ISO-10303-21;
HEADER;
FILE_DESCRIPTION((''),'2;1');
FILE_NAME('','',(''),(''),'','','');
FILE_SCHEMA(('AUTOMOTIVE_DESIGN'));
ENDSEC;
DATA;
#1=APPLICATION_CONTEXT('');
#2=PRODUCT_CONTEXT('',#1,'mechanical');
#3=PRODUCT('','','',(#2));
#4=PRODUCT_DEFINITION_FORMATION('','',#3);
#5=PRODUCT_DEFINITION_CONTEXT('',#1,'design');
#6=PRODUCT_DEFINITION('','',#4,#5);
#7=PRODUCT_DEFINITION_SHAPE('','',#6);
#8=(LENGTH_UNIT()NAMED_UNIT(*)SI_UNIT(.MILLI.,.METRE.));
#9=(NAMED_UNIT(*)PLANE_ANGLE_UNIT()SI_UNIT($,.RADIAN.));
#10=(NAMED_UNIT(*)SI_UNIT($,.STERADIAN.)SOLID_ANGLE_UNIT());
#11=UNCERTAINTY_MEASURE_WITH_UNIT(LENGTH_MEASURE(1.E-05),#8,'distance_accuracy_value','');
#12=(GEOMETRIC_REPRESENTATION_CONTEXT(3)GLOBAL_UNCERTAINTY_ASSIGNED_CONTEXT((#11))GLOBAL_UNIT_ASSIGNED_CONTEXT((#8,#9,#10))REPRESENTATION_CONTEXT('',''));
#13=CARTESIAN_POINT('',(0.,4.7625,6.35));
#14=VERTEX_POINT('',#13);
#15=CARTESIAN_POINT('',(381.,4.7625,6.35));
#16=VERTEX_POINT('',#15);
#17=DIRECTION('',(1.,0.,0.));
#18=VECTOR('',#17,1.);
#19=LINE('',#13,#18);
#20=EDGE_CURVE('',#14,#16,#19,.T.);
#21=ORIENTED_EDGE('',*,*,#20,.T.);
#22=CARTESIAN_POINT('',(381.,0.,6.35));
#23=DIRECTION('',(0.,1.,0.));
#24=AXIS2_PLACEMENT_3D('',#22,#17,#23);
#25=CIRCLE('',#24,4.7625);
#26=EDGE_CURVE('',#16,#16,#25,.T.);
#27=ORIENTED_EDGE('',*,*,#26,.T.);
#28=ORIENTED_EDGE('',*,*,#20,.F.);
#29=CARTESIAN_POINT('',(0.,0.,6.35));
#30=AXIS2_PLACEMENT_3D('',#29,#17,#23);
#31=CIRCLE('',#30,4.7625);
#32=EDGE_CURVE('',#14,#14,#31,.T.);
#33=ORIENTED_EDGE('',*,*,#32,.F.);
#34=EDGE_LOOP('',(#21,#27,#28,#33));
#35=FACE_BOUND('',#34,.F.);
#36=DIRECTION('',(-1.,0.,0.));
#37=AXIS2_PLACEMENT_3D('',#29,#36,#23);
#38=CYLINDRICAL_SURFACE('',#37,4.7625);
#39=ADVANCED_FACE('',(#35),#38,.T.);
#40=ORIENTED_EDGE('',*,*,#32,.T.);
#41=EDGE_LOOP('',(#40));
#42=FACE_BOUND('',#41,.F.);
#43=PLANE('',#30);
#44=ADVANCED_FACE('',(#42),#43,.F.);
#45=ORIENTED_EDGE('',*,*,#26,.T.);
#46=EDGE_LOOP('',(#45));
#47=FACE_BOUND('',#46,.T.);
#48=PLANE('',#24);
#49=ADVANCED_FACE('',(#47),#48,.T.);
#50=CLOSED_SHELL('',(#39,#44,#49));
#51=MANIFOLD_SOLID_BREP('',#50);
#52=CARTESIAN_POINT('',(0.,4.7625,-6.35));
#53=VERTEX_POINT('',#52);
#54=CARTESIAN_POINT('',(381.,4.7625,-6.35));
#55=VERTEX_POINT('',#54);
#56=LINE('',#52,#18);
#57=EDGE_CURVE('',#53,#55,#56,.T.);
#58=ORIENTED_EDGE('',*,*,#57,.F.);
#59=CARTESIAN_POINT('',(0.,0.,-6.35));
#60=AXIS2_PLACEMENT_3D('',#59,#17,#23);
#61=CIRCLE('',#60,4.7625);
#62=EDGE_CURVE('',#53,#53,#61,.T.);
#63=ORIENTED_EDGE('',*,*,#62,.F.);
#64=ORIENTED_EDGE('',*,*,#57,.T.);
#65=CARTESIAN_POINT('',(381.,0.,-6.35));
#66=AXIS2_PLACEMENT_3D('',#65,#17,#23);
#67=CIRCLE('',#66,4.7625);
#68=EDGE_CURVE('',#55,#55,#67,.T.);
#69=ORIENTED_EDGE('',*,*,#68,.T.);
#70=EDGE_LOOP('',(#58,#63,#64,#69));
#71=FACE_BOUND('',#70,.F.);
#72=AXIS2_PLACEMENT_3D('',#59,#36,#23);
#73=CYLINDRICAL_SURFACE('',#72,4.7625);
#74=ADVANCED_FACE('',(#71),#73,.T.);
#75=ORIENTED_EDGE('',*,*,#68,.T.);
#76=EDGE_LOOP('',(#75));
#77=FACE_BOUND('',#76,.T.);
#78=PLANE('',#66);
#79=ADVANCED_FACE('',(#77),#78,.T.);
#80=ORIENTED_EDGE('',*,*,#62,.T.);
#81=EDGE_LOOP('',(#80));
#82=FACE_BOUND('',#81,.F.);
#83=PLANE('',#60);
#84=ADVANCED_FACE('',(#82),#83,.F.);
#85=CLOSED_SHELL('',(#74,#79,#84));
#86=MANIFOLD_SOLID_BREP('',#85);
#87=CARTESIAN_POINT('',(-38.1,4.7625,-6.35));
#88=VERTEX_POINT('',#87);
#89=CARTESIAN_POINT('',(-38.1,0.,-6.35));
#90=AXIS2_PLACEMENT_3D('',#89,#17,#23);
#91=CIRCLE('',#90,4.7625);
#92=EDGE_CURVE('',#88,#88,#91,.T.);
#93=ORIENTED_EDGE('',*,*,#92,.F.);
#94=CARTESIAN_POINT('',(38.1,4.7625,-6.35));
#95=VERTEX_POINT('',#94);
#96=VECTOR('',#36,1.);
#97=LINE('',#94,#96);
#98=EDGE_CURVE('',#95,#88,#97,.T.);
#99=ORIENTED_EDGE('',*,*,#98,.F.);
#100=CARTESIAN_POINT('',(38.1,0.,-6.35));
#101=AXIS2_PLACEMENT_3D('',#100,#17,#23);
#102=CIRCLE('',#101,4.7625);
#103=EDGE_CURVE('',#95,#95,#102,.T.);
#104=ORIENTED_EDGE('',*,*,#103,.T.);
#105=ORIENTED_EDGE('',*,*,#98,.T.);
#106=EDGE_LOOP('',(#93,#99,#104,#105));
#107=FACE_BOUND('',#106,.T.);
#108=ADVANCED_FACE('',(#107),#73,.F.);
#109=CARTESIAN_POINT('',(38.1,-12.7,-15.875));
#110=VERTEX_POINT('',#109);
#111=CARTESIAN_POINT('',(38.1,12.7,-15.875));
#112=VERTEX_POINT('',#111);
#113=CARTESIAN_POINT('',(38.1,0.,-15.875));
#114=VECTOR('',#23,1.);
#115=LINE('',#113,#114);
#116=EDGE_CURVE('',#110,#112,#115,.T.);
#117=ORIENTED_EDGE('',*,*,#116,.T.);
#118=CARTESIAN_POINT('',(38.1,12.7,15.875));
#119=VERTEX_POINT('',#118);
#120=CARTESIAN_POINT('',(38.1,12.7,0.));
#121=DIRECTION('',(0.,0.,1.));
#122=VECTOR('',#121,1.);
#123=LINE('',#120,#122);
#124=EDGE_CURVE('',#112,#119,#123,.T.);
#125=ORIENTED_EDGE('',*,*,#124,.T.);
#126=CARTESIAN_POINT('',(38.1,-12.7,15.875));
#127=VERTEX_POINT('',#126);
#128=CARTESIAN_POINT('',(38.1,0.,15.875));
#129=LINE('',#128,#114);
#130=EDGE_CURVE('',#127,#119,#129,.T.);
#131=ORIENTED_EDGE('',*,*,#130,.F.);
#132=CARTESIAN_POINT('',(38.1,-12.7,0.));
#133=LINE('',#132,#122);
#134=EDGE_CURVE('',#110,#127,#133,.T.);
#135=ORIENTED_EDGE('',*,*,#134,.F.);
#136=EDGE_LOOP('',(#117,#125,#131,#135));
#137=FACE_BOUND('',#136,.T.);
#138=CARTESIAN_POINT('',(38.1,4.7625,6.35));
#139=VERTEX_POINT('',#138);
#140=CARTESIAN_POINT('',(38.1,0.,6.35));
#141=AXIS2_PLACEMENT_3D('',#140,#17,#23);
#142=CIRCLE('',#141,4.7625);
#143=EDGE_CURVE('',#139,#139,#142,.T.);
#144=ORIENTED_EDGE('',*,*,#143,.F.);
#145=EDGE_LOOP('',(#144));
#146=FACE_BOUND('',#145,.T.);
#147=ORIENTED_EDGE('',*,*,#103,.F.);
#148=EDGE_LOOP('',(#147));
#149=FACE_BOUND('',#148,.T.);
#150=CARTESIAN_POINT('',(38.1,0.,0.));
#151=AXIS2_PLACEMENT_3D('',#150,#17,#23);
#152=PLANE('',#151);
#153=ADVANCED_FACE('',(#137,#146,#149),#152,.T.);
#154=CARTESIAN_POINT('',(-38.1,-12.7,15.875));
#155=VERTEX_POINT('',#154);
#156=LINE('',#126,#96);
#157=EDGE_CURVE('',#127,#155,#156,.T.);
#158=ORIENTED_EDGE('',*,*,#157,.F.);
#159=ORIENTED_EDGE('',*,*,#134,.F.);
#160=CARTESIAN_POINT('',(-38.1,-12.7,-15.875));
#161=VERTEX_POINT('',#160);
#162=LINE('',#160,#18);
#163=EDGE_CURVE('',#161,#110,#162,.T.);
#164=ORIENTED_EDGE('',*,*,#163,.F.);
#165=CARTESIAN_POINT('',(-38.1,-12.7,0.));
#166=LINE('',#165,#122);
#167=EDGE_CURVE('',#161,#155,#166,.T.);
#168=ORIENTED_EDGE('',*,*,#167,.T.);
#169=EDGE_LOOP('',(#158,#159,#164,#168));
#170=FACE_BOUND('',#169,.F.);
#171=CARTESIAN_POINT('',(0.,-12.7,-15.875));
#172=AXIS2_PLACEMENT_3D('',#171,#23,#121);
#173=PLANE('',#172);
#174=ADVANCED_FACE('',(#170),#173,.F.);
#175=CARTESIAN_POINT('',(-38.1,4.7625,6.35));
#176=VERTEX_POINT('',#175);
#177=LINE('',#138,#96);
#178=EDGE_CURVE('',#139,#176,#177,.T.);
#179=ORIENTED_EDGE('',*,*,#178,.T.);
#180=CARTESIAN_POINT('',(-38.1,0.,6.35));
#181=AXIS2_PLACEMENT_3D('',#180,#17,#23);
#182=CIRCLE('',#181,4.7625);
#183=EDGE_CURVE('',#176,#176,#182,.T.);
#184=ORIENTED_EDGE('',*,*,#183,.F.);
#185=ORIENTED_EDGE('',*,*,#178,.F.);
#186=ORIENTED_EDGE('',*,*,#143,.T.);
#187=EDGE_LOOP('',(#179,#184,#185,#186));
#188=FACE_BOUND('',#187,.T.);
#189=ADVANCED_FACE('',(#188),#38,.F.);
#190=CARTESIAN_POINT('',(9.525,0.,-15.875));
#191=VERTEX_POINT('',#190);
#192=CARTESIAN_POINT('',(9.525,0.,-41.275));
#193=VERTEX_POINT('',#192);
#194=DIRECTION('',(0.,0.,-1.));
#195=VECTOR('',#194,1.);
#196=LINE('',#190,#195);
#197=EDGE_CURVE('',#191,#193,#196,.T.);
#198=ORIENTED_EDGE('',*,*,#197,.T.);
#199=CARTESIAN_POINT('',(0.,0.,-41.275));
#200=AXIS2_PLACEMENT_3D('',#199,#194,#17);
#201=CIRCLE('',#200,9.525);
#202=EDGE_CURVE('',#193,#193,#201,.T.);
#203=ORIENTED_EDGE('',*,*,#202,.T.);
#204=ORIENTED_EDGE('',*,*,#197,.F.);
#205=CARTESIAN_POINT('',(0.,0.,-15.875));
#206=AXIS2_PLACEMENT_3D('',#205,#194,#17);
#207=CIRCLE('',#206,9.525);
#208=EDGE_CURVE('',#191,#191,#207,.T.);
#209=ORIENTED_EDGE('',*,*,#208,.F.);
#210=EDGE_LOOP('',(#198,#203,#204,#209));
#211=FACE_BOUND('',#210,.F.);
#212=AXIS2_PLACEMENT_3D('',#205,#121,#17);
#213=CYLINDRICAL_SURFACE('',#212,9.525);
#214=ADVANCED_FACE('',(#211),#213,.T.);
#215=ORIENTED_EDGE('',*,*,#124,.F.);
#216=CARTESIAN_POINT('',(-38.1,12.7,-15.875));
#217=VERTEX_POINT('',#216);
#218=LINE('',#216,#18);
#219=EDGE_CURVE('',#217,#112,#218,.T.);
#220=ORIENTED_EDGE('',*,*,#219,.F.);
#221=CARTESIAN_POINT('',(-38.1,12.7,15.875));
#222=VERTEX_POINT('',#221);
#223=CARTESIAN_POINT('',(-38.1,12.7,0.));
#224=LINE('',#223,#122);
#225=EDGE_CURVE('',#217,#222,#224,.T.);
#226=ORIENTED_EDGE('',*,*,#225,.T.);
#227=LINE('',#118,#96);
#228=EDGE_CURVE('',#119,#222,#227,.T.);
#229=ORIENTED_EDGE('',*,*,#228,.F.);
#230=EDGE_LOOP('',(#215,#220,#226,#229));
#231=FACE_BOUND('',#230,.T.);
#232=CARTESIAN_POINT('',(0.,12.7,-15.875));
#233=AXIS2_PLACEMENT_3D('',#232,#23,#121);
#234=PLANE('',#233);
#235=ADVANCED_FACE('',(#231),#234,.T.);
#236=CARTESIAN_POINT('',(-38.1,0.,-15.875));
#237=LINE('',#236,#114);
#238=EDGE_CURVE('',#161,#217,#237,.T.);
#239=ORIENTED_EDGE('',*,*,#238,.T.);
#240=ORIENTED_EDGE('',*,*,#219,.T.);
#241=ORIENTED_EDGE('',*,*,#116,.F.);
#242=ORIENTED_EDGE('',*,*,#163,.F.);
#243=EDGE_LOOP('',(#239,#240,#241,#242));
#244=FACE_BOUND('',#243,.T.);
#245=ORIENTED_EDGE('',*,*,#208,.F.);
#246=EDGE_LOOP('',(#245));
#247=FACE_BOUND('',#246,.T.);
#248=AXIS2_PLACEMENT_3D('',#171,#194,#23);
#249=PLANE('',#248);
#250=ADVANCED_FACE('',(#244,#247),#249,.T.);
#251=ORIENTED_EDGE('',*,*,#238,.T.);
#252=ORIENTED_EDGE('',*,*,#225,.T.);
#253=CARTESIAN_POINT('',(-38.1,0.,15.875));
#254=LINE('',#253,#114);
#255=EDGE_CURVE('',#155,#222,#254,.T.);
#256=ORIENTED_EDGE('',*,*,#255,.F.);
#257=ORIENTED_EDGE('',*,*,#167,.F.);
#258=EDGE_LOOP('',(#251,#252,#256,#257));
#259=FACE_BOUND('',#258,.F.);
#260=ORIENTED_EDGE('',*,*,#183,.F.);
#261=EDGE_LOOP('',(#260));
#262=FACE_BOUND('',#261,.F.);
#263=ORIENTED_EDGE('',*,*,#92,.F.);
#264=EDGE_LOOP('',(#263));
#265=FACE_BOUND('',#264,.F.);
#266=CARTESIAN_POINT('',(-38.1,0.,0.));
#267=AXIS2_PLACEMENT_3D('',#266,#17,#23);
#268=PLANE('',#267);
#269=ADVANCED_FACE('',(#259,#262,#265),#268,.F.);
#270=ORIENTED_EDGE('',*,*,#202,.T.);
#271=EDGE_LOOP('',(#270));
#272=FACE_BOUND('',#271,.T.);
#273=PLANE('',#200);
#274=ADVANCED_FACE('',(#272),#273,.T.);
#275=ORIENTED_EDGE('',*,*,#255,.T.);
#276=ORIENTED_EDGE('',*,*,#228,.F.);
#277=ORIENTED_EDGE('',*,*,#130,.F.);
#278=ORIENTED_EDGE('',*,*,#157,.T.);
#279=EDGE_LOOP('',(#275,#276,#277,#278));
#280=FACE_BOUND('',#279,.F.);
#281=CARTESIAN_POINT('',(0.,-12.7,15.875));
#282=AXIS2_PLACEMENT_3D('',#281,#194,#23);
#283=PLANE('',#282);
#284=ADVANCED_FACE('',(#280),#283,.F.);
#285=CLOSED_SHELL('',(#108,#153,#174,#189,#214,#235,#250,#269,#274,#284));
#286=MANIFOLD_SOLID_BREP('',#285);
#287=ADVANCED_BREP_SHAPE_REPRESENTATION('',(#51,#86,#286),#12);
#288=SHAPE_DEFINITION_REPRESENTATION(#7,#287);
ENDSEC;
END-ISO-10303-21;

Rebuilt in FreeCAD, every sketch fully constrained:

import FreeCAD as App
import Part
import Sketcher

V = App.Vector
Q = App.Units.Quantity

doc = App.newDocument("Part")
params = doc.addObject("Spreadsheet::Sheet", "Params")
for row, (alias, value) in enumerate([
    ("sketch1_width", "1 in"),
    ("sketch1_diameter", "0.375 in"),
    ("sketch1_height", "1.25 in"),
    ("pad1_length", "3 in"),
    ("sketch2_diameter", "0.75 in"),
    ("pad2_length", "1 in"),
    ("sketch3_diameter", "0.375 in"),
    ("pad3_length", "15 in"),
    ("sketch4_diameter", "0.375 in"),
    ("pad4_length", "15 in"),
], start=1):
    params.set(f"A{row}", alias)
    params.set(f"B{row}", "=" + value)
    params.setAlias(f"B{row}", alias)

body = doc.addObject("PartDesign::Body", "Body")

sketch1 = body.newObject("Sketcher::SketchObject", "Sketch")
sketch1.AttachmentSupport = (doc.getObject("YZ_Plane"), [""])
sketch1.MapMode = "FlatFace"
sketch1.addGeometry([
    Part.LineSegment(V(-12.7, 15.9, 0), V(-12.7, -15.9, 0)),
    Part.LineSegment(V(-12.7, -15.9, 0), V(12.7, -15.9, 0)),
    Part.LineSegment(V(12.7, -15.9, 0), V(12.7, 15.9, 0)),
    Part.LineSegment(V(12.7, 15.9, 0), V(-12.7, 15.9, 0)),
    Part.Circle(V(0, -6.3, 0), V(0, 0, 1), 4.8),
    Part.Circle(V(0, 6.3, 0), V(0, 0, 1), 4.8),
], False)
sketch1.addConstraint([
    Sketcher.Constraint("Coincident", 0, 2, 1, 1),
    Sketcher.Constraint("Coincident", 1, 2, 2, 1),
    Sketcher.Constraint("Coincident", 2, 2, 3, 1),
    Sketcher.Constraint("Coincident", 3, 2, 0, 1),
    Sketcher.Constraint("Vertical", 0),
    Sketcher.Constraint("Horizontal", 1),
    Sketcher.Constraint("Vertical", 2),
    Sketcher.Constraint("Horizontal", 3),
    Sketcher.Constraint("Equal", 4, 5),
    Sketcher.Constraint("Symmetric", 4, 3, 5, 3, -1, 1),
    Sketcher.Constraint("Symmetric", 0, 2, 2, 2, -1, 1),
    Sketcher.Constraint("PointOnObject", 4, 3, -2),
    Sketcher.Constraint("DistanceX", 1, 1, 1, 2, Q("1 in")),
    Sketcher.Constraint("Diameter", 4, Q("0.375 in")),
    Sketcher.Constraint("DistanceY", 0, 2, 0, 1, Q("1.25 in")),
    Sketcher.Constraint("DistanceY", 4, 3, 5, 3, Q("0.5 in")),
])
sketch1.setExpression("Constraints[12]", "Params.sketch1_width")
sketch1.setExpression("Constraints[13]", "Params.sketch1_diameter")
sketch1.setExpression("Constraints[14]", "Params.sketch1_height")
pad1 = body.newObject("PartDesign::Pad", "Pad")
pad1.Profile = sketch1
pad1.setExpression("Length", "Params.pad1_length")
pad1.Midplane = True

sketch2 = body.newObject("Sketcher::SketchObject", "Sketch001")
sketch2.AttachmentSupport = (doc.getObject("XY_Plane"), [""])
sketch2.MapMode = "FlatFace"
sketch2.AttachmentOffset = App.Placement(V(0, 0, -0.625 * 25.4), App.Rotation())
sketch2.addGeometry(Part.Circle(V(0, 0, 0), V(0, 0, 1), 10), False)
sketch2.addConstraint([
    Sketcher.Constraint("Coincident", 0, 3, -1, 1),
    Sketcher.Constraint("Diameter", 0, Q("0.75 in")),
])
sketch2.setExpression("Constraints[1]", "Params.sketch2_diameter")
pad2 = body.newObject("PartDesign::Pad", "Pad001")
pad2.Profile = sketch2
pad2.setExpression("Length", "Params.pad2_length")
pad2.Reversed = True
body2 = doc.addObject("PartDesign::Body", "Body001")

sketch3 = body2.newObject("Sketcher::SketchObject", "Sketch002")
sketch3.AttachmentSupport = (doc.getObject("YZ_Plane001"), [""])
sketch3.MapMode = "FlatFace"
sketch3.addGeometry(Part.Circle(V(0, 6.3, 0), V(0, 0, 1), 4.8), False)
sketch3.addConstraint([
    Sketcher.Constraint("PointOnObject", 0, 3, -2),
    Sketcher.Constraint("Diameter", 0, Q("0.375 in")),
    Sketcher.Constraint("DistanceY", -1, 1, 0, 3, Q("0.25 in")),
])
sketch3.setExpression("Constraints[1]", "Params.sketch3_diameter")
pad3 = body2.newObject("PartDesign::Pad", "Pad002")
pad3.Profile = sketch3
pad3.setExpression("Length", "Params.pad3_length")
body3 = doc.addObject("PartDesign::Body", "Body002")

sketch4 = body3.newObject("Sketcher::SketchObject", "Sketch003")
sketch4.AttachmentSupport = (doc.getObject("YZ_Plane002"), [""])
sketch4.MapMode = "FlatFace"
sketch4.addGeometry(Part.Circle(V(0, -6.3, 0), V(0, 0, 1), 4.8), False)
sketch4.addConstraint([
    Sketcher.Constraint("PointOnObject", 0, 3, -2),
    Sketcher.Constraint("Diameter", 0, Q("0.375 in")),
    Sketcher.Constraint("DistanceY", 0, 3, -1, 1, Q("0.25 in")),
])
sketch4.setExpression("Constraints[1]", "Params.sketch4_diameter")
pad4 = body3.newObject("PartDesign::Pad", "Pad003")
pad4.Profile = sketch4
pad4.setExpression("Length", "Params.pad4_length")

doc.recompute()
